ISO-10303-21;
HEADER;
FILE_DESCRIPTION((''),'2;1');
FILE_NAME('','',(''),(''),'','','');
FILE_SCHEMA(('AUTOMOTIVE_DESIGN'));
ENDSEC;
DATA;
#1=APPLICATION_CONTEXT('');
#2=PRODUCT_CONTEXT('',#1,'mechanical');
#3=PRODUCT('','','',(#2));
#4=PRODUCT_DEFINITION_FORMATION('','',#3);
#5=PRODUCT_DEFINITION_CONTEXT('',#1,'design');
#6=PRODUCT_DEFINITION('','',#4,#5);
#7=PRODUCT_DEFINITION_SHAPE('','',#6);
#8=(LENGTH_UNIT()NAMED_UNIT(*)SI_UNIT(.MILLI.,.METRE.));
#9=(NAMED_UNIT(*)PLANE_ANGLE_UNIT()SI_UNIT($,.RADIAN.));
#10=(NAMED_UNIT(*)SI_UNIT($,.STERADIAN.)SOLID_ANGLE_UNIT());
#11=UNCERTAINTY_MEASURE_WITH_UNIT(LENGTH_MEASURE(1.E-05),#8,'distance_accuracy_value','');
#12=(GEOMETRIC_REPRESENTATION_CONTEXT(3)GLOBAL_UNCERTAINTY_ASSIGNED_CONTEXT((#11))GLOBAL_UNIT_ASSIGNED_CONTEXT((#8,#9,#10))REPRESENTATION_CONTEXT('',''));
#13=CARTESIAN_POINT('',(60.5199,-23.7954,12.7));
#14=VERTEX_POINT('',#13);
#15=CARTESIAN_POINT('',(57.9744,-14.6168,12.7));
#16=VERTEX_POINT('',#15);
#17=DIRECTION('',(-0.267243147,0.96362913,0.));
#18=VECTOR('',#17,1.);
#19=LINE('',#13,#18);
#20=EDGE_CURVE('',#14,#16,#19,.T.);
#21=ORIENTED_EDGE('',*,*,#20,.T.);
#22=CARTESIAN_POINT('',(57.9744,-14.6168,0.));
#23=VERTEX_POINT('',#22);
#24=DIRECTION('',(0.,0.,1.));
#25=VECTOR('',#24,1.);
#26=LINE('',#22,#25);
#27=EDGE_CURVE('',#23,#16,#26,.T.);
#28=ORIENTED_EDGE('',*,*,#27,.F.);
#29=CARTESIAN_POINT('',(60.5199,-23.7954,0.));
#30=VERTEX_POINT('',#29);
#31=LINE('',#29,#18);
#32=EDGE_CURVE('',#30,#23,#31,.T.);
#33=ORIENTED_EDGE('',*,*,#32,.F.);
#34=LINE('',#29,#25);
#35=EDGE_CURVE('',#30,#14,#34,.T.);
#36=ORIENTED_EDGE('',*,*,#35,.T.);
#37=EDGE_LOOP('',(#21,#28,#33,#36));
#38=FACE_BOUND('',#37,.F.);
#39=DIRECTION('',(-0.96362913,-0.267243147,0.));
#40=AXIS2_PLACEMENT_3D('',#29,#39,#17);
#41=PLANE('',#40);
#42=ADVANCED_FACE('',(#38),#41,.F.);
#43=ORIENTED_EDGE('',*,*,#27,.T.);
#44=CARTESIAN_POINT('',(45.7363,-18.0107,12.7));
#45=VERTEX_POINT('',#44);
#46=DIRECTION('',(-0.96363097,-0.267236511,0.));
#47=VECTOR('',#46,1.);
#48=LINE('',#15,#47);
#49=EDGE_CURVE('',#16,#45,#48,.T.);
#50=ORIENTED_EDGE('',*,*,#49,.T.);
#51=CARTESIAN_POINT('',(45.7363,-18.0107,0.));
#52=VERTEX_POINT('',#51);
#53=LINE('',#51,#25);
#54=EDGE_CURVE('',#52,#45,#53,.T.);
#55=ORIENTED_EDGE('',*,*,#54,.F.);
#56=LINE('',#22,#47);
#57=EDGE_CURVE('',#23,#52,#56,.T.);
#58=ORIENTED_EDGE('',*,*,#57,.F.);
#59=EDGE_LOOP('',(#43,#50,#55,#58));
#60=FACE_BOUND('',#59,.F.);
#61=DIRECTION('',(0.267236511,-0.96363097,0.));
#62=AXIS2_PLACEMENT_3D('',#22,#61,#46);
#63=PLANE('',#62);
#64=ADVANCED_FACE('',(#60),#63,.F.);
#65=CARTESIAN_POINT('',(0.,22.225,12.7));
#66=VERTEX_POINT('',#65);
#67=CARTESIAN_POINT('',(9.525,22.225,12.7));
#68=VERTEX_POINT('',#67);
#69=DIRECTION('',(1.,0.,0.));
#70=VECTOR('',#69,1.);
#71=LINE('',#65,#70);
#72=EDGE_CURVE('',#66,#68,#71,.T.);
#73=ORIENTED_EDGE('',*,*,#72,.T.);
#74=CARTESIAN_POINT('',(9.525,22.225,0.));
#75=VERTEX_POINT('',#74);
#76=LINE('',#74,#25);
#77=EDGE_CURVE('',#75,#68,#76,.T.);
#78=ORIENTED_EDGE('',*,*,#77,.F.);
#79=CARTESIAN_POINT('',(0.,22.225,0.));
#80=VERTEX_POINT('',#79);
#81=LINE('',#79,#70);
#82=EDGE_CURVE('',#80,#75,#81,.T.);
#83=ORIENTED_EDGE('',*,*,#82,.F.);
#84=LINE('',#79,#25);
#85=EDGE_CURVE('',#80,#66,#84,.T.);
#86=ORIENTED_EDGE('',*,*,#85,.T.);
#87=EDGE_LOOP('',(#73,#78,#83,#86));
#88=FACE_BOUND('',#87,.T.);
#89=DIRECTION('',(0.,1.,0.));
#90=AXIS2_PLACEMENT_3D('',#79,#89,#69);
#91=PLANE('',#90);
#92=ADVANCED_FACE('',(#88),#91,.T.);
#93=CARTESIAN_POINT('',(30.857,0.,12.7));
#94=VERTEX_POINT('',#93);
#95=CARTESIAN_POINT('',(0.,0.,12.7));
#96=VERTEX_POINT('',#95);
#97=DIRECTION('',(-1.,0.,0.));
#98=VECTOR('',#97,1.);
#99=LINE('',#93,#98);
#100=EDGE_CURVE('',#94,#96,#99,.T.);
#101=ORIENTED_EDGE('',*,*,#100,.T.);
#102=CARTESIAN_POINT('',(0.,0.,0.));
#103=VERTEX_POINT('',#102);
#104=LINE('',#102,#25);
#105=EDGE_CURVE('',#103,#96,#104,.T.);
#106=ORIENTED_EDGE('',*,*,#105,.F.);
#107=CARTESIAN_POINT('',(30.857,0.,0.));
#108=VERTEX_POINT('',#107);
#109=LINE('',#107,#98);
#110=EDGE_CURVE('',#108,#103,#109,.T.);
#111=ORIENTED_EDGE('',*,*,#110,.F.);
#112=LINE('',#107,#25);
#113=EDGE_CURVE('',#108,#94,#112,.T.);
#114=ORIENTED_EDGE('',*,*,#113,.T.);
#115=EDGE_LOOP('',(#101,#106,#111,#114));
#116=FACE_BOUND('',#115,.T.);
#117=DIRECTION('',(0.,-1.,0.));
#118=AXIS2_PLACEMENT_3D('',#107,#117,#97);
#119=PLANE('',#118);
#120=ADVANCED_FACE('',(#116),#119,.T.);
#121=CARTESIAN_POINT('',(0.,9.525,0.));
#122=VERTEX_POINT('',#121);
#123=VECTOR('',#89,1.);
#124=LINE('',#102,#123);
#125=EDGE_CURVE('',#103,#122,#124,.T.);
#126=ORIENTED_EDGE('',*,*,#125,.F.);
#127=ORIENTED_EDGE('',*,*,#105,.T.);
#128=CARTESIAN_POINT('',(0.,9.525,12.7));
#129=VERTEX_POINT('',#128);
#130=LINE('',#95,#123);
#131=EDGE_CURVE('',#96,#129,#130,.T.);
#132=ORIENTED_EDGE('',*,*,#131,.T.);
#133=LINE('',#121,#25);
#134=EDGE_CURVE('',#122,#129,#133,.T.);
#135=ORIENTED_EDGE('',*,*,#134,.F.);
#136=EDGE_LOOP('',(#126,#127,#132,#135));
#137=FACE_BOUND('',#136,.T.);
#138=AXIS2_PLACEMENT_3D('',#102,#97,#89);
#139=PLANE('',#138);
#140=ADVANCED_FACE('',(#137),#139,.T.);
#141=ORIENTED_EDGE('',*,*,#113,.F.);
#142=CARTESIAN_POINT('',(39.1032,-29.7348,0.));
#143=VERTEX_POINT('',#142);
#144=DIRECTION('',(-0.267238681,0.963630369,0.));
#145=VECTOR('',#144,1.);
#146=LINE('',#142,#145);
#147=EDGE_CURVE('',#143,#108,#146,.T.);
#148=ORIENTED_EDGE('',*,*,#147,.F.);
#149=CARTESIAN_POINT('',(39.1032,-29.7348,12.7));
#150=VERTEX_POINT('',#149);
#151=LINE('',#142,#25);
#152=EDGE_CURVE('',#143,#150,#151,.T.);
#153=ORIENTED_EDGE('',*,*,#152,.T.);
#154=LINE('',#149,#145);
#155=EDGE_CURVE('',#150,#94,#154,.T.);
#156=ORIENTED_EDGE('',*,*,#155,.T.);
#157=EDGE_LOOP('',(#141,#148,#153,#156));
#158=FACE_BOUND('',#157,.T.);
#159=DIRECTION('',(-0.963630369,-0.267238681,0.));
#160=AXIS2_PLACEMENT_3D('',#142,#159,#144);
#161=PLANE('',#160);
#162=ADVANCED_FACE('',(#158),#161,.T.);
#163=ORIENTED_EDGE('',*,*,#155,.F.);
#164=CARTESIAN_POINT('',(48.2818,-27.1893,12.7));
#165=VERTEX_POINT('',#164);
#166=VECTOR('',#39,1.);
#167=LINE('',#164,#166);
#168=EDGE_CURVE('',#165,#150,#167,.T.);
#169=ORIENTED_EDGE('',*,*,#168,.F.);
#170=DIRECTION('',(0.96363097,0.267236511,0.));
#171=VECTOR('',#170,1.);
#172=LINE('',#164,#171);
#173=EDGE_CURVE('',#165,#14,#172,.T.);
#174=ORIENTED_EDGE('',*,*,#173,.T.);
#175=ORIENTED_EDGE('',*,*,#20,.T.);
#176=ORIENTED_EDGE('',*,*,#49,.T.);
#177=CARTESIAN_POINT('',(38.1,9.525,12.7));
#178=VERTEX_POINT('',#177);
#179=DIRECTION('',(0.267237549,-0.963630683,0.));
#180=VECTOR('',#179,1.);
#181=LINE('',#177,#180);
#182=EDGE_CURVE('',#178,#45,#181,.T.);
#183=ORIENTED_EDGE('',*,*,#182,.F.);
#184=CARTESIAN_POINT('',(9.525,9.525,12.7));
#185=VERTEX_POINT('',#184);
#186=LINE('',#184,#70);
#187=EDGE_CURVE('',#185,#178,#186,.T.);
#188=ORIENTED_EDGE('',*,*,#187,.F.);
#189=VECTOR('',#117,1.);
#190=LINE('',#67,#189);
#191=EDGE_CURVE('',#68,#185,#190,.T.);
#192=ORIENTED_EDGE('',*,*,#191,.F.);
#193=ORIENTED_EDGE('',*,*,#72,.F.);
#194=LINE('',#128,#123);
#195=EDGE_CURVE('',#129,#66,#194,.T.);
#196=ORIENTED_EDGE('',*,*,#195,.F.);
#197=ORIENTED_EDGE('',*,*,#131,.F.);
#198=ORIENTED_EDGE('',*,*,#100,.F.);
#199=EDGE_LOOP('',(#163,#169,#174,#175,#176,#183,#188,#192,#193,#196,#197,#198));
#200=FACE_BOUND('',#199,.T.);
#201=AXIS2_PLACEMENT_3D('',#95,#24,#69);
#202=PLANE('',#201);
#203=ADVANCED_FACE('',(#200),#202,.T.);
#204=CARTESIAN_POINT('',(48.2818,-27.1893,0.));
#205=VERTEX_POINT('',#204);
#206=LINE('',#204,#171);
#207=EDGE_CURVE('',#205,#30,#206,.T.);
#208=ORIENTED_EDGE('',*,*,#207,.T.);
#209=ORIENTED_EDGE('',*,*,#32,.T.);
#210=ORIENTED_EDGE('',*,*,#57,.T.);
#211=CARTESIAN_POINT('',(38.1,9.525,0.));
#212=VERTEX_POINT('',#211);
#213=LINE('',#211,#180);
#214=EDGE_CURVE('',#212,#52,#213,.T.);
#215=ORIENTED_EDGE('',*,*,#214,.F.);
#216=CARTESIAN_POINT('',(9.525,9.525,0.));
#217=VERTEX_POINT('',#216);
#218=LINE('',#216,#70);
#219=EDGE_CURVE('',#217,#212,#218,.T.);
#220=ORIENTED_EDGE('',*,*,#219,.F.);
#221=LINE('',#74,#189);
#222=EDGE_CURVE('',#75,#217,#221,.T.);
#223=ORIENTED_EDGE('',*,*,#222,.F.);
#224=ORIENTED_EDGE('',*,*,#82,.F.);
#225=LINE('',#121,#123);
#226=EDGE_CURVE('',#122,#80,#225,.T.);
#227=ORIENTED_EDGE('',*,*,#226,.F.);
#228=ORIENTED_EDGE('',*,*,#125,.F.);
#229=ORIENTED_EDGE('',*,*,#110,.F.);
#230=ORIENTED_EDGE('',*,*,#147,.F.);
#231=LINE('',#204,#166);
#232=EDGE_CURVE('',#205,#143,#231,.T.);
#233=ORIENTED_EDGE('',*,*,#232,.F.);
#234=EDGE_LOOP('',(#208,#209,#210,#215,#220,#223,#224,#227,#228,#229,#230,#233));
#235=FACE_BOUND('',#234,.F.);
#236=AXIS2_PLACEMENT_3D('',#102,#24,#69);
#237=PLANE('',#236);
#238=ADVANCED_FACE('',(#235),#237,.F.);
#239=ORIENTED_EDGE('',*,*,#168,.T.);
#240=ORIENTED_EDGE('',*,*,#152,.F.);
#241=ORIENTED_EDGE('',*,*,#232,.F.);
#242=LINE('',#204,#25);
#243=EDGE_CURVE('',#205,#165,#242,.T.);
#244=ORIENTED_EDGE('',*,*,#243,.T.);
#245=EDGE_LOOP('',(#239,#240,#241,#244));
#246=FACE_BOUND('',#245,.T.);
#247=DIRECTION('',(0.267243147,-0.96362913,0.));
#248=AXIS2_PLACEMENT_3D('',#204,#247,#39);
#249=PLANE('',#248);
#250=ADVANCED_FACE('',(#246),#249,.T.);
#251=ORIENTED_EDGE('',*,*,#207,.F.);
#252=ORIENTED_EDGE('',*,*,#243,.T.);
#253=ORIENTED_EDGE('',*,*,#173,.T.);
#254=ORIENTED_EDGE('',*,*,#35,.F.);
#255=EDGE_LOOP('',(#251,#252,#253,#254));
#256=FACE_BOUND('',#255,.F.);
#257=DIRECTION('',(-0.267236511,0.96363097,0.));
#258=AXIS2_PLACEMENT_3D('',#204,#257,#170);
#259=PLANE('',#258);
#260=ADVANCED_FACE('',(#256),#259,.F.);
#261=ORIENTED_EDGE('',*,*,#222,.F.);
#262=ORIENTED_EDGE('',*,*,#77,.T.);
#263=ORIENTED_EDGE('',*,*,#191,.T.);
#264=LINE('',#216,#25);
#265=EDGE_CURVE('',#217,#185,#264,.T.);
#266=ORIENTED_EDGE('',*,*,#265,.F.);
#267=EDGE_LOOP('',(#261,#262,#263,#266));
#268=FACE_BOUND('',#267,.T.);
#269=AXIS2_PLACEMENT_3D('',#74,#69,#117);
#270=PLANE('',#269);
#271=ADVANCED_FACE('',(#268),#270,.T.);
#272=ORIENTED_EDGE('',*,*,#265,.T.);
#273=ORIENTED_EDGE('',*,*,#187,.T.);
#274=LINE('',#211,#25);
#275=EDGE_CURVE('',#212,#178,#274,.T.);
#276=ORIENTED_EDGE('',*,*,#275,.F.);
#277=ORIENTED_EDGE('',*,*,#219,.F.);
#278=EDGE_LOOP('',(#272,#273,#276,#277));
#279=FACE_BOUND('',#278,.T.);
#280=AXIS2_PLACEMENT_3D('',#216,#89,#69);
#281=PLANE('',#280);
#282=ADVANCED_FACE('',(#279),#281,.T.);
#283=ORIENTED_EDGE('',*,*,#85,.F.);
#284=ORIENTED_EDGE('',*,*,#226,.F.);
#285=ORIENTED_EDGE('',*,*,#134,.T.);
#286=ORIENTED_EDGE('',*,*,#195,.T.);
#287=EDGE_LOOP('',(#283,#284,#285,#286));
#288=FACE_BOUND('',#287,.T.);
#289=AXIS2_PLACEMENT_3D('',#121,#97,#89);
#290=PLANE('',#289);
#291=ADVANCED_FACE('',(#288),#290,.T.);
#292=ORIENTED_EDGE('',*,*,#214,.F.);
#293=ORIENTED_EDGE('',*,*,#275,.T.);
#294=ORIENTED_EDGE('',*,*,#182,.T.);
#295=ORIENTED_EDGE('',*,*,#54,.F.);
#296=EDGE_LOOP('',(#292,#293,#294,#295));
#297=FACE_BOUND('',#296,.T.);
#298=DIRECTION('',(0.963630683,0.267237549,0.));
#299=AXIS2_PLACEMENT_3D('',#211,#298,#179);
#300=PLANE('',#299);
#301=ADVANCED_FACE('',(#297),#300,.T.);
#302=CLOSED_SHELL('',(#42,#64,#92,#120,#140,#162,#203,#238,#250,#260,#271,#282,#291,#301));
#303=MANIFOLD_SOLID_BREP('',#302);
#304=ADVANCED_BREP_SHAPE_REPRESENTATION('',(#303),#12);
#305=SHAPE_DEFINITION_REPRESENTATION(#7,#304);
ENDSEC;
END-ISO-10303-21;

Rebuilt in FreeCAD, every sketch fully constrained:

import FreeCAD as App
import Part
import Sketcher
from FreeCAD import Vector
Q = App.Units.Quantity

doc = App.newDocument("Part")
body = doc.addObject("PartDesign::Body", "Body")

sketch1 = body.newObject("Sketcher::SketchObject", "Sketch")
sketch1.AttachmentSupport = (doc.getObject("XY_Plane"), [""])
sketch1.MapMode = "FlatFace"
sketch1.addGeometry([
    Part.LineSegment(Vector(0, 22.225, 0), Vector(0, 0, 0)),
    Part.LineSegment(Vector(0, 0, 0), Vector(30.857, 0, 0)),
    Part.LineSegment(Vector(30.857, 0, 0), Vector(39.1032, -29.7348, 0)),
    Part.LineSegment(Vector(39.1032, -29.7348, 0), Vector(48.2818, -27.1893, 0)),
    Part.LineSegment(Vector(48.2818, -27.1893, 0), Vector(60.5199, -23.7954, 0)),
    Part.LineSegment(Vector(60.5199, -23.7954, 0), Vector(57.9744, -14.6168, 0)),
    Part.LineSegment(Vector(57.9744, -14.6168, 0), Vector(45.7363, -18.0107, 0)),
    Part.LineSegment(Vector(45.7363, -18.0107, 0), Vector(38.1, 9.525, 0)),
    Part.LineSegment(Vector(38.1, 9.525, 0), Vector(9.525, 9.525, 0)),
    Part.LineSegment(Vector(9.525, 9.525, 0), Vector(9.525, 22.225, 0)),
    Part.LineSegment(Vector(9.525, 22.225, 0), Vector(0, 22.225, 0)),
], False)
sketch1.addConstraint([
    Sketcher.Constraint("Coincident", 0, 2, 1, 1),
    Sketcher.Constraint("Coincident", 1, 2, 2, 1),
    Sketcher.Constraint("Coincident", 2, 2, 3, 1),
    Sketcher.Constraint("Coincident", 3, 2, 4, 1),
    Sketcher.Constraint("Coincident", 4, 2, 5, 1),
    Sketcher.Constraint("Coincident", 5, 2, 6, 1),
    Sketcher.Constraint("Coincident", 6, 2, 7, 1),
    Sketcher.Constraint("Coincident", 7, 2, 8, 1),
    Sketcher.Constraint("Coincident", 8, 2, 9, 1),
    Sketcher.Constraint("Coincident", 9, 2, 10, 1),
    Sketcher.Constraint("Coincident", 10, 2, 0, 1),
    Sketcher.Constraint("Vertical", 0),
    Sketcher.Constraint("Horizontal", 1),
    Sketcher.Constraint("Horizontal", 8),
    Sketcher.Constraint("Vertical", 9),
    Sketcher.Constraint("Horizontal", 10),
    Sketcher.Constraint("Coincident", 0, 2, -1, 1),
    Sketcher.Constraint("Perpendicular", 2, 3),
    Sketcher.Constraint("Parallel", 3, 4),
    Sketcher.Constraint("Perpendicular", 4, 5),
    Sketcher.Constraint("Perpendicular", 5, 6),
    Sketcher.Constraint("Perpendicular", 6, 7),
    Sketcher.Constraint("Equal", 3, 5),
    Sketcher.Constraint("Equal", 4, 6),
    Sketcher.Constraint("DistanceY", 9, 1, 9, 2, Q("0.5 in")),
    Sketcher.Constraint("Distance", 4, Q("0.5 in")),
    Sketcher.Constraint("DistanceX", -1, 1, 7, 2, Q("1.5 in")),
    Sketcher.Constraint("Angle", 2, Q("-74.5 deg")),
    Sketcher.Constraint("DistanceX", 10, 2, 10, 1, Q("0.375 in")),
    Sketcher.Constraint("Distance", 3, Q("0.375 in")),
    Sketcher.Constraint("DistanceY", -1, 1, 7, 2, Q("0.375 in")),
    Sketcher.Constraint("Distance", 7, Q("1.125 in")),
])
pad1 = body.newObject("PartDesign::Pad", "Pad")
pad1.Profile = sketch1
pad1.Length = Q("0.5 in")

doc.recompute()
